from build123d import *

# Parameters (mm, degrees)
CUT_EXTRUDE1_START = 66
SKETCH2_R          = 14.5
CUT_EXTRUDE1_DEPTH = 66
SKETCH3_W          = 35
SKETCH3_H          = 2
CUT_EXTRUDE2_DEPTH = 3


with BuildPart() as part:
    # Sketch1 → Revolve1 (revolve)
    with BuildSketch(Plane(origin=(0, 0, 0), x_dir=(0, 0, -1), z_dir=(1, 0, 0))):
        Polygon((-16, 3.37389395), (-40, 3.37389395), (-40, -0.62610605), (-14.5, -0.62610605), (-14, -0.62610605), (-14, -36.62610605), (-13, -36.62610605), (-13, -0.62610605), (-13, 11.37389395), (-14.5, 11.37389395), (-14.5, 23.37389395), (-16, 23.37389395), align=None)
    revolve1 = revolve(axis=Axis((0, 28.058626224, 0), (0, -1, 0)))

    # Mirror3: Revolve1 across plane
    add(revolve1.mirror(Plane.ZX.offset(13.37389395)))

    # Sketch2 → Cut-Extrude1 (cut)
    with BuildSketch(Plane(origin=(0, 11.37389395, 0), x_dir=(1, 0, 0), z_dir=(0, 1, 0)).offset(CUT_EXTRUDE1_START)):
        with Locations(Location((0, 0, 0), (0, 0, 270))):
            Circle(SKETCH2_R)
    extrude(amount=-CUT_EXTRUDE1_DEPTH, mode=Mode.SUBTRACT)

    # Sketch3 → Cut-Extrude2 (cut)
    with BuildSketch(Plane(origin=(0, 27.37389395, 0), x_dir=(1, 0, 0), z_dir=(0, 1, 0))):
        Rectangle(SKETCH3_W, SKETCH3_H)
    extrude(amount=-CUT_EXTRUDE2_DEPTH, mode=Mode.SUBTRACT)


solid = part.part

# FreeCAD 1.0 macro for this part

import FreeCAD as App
import Part
import Sketcher
Q = App.Units.Quantity


def add_polygon(sketch, points):
    """Adds a closed chain of lines whose ends are joined by coincident constraints."""
    first, n = sketch.GeometryCount, len(points)
    for a, b in zip(points, points[1:] + points[:1]):
        sketch.addGeometry(Part.LineSegment(App.Vector(*a, 0), App.Vector(*b, 0)), False)
    for i in range(n):
        sketch.addConstraint(Sketcher.Constraint("Coincident", first + i, 2, first + (i + 1) % n, 1))

doc = App.newDocument("Part")
body = doc.addObject("PartDesign::Body", "Body")

sketch1 = doc.addObject("Sketcher::SketchObject", "Sketch")
body.addObject(sketch1)
sketch1.AttachmentSupport = (doc.YZ_Plane, [""])
sketch1.MapMode = "FlatFace"
add_polygon(sketch1, [(3.4, 16), (3.4, 40), (-0.6, 40), (-0.6, 14), (-36.6, 14), (-36.6, 13), (11.4, 13), (11.4, 14.5), (23.4, 14.5), (23.4, 16)])
sketch1.addConstraint([
    Sketcher.Constraint("Vertical", 0),
    Sketcher.Constraint("Horizontal", 1),
    Sketcher.Constraint("Vertical", 2),
    Sketcher.Constraint("Horizontal", 3),
    Sketcher.Constraint("Vertical", 4),
    Sketcher.Constraint("Horizontal", 5),
    Sketcher.Constraint("Vertical", 6),
    Sketcher.Constraint("Horizontal", 7),
    Sketcher.Constraint("Vertical", 8),
    Sketcher.Constraint("Horizontal", 9),
    Sketcher.Constraint("Equal", 6, 8),
    Sketcher.Constraint("DistanceX", 1, 2, 1, 1, Q("4 mm")),
    Sketcher.Constraint("DistanceX", 3, 2, 3, 1, Q("36 mm")),
    Sketcher.Constraint("DistanceX", 5, 1, 5, 2, Q("48 mm")),
    Sketcher.Constraint("DistanceX", 7, 1, 7, 2, Q("12 mm")),
    Sketcher.Constraint("DistanceY", 0, 1, 0, 2, Q("24 mm")),
    Sketcher.Constraint("DistanceY", 2, 2, 2, 1, Q("26 mm")),
    Sketcher.Constraint("DistanceY", 4, 2, 4, 1, Q("1 mm")),
    Sketcher.Constraint("DistanceY", -1, 1, 0, 2, Q("40 mm")),
    Sketcher.Constraint("DistanceX", -1, 1, 0, 2, Q("3.373894 mm")),
])
revolution = doc.addObject("PartDesign::Revolution", "Revolution")
body.addObject(revolution)
revolution.Profile = sketch1
revolution.ReferenceAxis = (sketch1, ["H_Axis"])
revolution.Angle = 360
doc.recompute()

datumplane = doc.addObject("PartDesign::Plane", "DatumPlane")
body.addObject(datumplane)
datumplane.AttachmentSupport = (doc.XZ_Plane, [""])
datumplane.MapMode = "FlatFace"
datumplane.AttachmentOffset = App.Placement(App.Vector(0, 0, -13.373894), App.Rotation())
mirrored = doc.addObject("PartDesign::Mirrored", "Mirrored")
body.addObject(mirrored)
mirrored.Originals = [revolution]
mirrored.MirrorPlane = (datumplane, [""])
body.Tip = mirrored

sketch2 = doc.addObject("Sketcher::SketchObject", "Sketch001")
body.addObject(sketch2)
sketch2.AttachmentSupport = (doc.XZ_Plane, [""])
sketch2.MapMode = "FlatFace"
sketch2.AttachmentOffset = App.Placement(App.Vector(0, 0, -77.373894), App.Rotation())
sketch2.addGeometry(Part.Circle(App.Vector(0, 0, 0), App.Vector(0, 0, 1), 14), False)
sketch2.addConstraint([
    Sketcher.Constraint("Coincident", 0, 3, -1, 1),
    Sketcher.Constraint("Diameter", 0, Q("29 mm")),
])
pocket1 = doc.addObject("PartDesign::Pocket", "Pocket")
body.addObject(pocket1)
pocket1.Profile = sketch2
pocket1.Length = 66
pocket1.Reversed = True

sketch3 = doc.addObject("Sketcher::SketchObject", "Sketch002")
body.addObject(sketch3)
sketch3.AttachmentSupport = (doc.XZ_Plane, [""])
sketch3.MapMode = "FlatFace"
sketch3.AttachmentOffset = App.Placement(App.Vector(0, 0, -27.373894), App.Rotation())
add_polygon(sketch3, [(-17.5, -1), (-17.5, 1), (17.5, 1), (17.5, -1)])
sketch3.addConstraint([
    Sketcher.Constraint("Vertical", 0),
    Sketcher.Constraint("Horizontal", 1),
    Sketcher.Constraint("Vertical", 2),
    Sketcher.Constraint("Horizontal", 3),
    Sketcher.Constraint("Symmetric", 0, 2, 2, 2, -1, 1),
    Sketcher.Constraint("DistanceX", 1, 1, 1, 2, Q("35 mm")),
    Sketcher.Constraint("DistanceY", 0, 1, 0, 2, Q("2 mm")),
])
pocket2 = doc.addObject("PartDesign::Pocket", "Pocket001")
body.addObject(pocket2)
pocket2.Profile = sketch3
pocket2.Length = 3
pocket2.Reversed = True

doc.recompute()
